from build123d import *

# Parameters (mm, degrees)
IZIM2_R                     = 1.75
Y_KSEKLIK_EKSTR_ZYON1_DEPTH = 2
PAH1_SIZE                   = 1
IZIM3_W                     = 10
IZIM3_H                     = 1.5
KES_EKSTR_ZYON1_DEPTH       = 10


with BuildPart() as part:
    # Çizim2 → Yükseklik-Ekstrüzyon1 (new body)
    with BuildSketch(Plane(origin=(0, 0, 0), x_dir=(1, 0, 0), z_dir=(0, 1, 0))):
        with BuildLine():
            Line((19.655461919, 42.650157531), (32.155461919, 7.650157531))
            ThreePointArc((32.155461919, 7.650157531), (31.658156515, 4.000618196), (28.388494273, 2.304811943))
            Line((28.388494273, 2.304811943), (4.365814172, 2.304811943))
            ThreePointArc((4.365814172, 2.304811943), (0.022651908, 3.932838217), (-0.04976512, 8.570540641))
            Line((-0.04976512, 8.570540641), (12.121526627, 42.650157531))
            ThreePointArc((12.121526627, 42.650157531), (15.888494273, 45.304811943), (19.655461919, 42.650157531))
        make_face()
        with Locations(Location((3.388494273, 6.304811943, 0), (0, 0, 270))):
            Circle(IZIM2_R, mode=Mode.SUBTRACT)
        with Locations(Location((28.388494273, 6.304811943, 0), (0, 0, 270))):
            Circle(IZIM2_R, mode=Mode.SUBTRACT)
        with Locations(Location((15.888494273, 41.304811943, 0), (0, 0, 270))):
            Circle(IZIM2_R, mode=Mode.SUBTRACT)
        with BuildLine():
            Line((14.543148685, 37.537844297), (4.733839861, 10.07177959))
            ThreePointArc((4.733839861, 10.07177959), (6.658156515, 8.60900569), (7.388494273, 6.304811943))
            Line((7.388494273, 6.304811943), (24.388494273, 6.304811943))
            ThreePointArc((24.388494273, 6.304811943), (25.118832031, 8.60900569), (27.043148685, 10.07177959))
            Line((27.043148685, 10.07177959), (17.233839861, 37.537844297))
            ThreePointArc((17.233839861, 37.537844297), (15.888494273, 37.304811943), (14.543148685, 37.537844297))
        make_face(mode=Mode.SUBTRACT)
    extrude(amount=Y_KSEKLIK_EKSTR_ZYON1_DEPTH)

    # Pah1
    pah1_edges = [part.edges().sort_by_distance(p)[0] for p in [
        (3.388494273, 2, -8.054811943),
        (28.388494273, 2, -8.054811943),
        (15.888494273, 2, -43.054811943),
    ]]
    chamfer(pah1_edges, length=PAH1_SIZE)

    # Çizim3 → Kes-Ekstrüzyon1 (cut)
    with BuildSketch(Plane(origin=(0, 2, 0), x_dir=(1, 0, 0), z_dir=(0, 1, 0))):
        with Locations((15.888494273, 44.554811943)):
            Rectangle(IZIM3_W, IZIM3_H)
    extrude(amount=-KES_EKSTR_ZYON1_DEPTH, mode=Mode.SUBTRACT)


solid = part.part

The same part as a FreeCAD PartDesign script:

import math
import FreeCAD as App
import Part
import Sketcher
Q = App.Units.Quantity


def edges_at(feature, points):
    """Names of the edges that pass closest to the given points."""
    edges = feature.Shape.Edges
    near = lambda p: min(range(len(edges)), key=lambda i: edges[i].distToShape(Part.Vertex(*p))[0])
    return sorted({f"Edge{near(p) + 1}" for p in points})


def add_polygon(sketch, points):
    """Adds a closed chain of lines whose ends are joined by coincident constraints."""
    first, n = sketch.GeometryCount, len(points)
    for a, b in zip(points, points[1:] + points[:1]):
        sketch.addGeometry(Part.LineSegment(App.Vector(*a, 0), App.Vector(*b, 0)), False)
    for i in range(n):
        sketch.addConstraint(Sketcher.Constraint("Coincident", first + i, 2, first + (i + 1) % n, 1))

doc = App.newDocument("Part")
body = doc.addObject("PartDesign::Body", "Body")

# Sketch on XZ plane
sketch1 = body.newObject("Sketcher::SketchObject", "Sketch")
sketch1.AttachmentSupport = (doc.getObject("XZ_Plane"), [""])
sketch1.MapMode = "FlatFace"
sketch1.addGeometry(Part.LineSegment(App.Vector(32.155462, -7.650158, 0), App.Vector(19.655462, -42.650158, 0)), False)
sketch1.addGeometry(Part.ArcOfCircle(Part.Circle(App.Vector(15.888494, -41.304812, 0), App.Vector(0, 0, 1), 4), math.radians(-160.346176), math.radians(-19.653824)), False)
sketch1.addGeometry(Part.LineSegment(App.Vector(12.121527, -42.650158, 0), App.Vector(-0.049765, -8.570541, 0)), False)
sketch1.addGeometry(Part.ArcOfCircle(Part.Circle(App.Vector(3.388494, -6.304812, 0), App.Vector(0, 0, 1), 4.117664), math.radians(76.269921), math.radians(213.383903)), False)
sketch1.addGeometry(Part.LineSegment(App.Vector(4.365814, -2.304812, 0), App.Vector(28.388494, -2.304812, 0)), False)
sketch1.addGeometry(Part.ArcOfCircle(Part.Circle(App.Vector(28.388494, -6.304812, 0), App.Vector(0, 0, 1), 4), math.radians(-19.653824), math.radians(90)), False)
sketch1.addGeometry(Part.Circle(App.Vector(28.388494, -6.304812, 0), App.Vector(0, 0, 1), 1.75), False)
sketch1.addGeometry(Part.Circle(App.Vector(3.388494, -6.304812, 0), App.Vector(0, 0, 1), 1.75), False)
sketch1.addGeometry(Part.ArcOfCircle(Part.Circle(App.Vector(15.888494, -41.304812, 0), App.Vector(0, 0, 1), 4), math.radians(70.346176), math.radians(109.653824)), False)
sketch1.addGeometry(Part.LineSegment(App.Vector(17.23384, -37.537844, 0), App.Vector(27.043149, -10.07178, 0)), False)
sketch1.addGeometry(Part.ArcOfCircle(Part.Circle(App.Vector(28.388494, -6.304812, 0), App.Vector(0, 0, 1), 4), math.radians(180), math.radians(250.346176)), False)
sketch1.addGeometry(Part.LineSegment(App.Vector(24.388494, -6.304812, 0), App.Vector(7.388494, -6.304812, 0)), False)
sketch1.addGeometry(Part.ArcOfCircle(Part.Circle(App.Vector(3.388494, -6.304812, 0), App.Vector(0, 0, 1), 4), math.radians(-70.346176), math.radians(0)), False)
sketch1.addGeometry(Part.LineSegment(App.Vector(4.73384, -10.07178, 0), App.Vector(14.543149, -37.537844, 0)), False)
sketch1.addGeometry(Part.Circle(App.Vector(15.888494, -41.304812, 0), App.Vector(0, 0, 1), 1.75), False)
sketch1.addConstraint(Sketcher.Constraint("Tangent", 0, 2, 1, 2))
sketch1.addConstraint(Sketcher.Constraint("Tangent", 1, 1, 2, 1))
sketch1.addConstraint(Sketcher.Constraint("Coincident", 2, 2, 3, 2))
sketch1.addConstraint(Sketcher.Constraint("Coincident", 3, 1, 4, 1))
sketch1.addConstraint(Sketcher.Constraint("Tangent", 4, 2, 5, 2))
sketch1.addConstraint(Sketcher.Constraint("Tangent", 5, 1, 0, 1))
sketch1.addConstraint(Sketcher.Constraint("Coincident", 8, 1, 9, 1))
sketch1.addConstraint(Sketcher.Constraint("Coincident", 9, 2, 10, 2))
sketch1.addConstraint(Sketcher.Constraint("Coincident", 10, 1, 11, 1))
sketch1.addConstraint(Sketcher.Constraint("Coincident", 11, 2, 12, 2))
sketch1.addConstraint(Sketcher.Constraint("Coincident", 12, 1, 13, 1))
sketch1.addConstraint(Sketcher.Constraint("Coincident", 13, 2, 8, 2))
sketch1.addConstraint(Sketcher.Constraint("Horizontal", 4))
sketch1.addConstraint(Sketcher.Constraint("Horizontal", 11))
sketch1.addConstraint(Sketcher.Constraint("Coincident", 6, 3, 5, 3))
sketch1.addConstraint(Sketcher.Constraint("Coincident", 7, 3, 3, 3))
sketch1.addConstraint(Sketcher.Constraint("Coincident", 8, 3, 1, 3))
sketch1.addConstraint(Sketcher.Constraint("Coincident", 10, 3, 5, 3))
sketch1.addConstraint(Sketcher.Constraint("Coincident", 12, 3, 3, 3))
sketch1.addConstraint(Sketcher.Constraint("Coincident", 14, 3, 1, 3))
sketch1.addConstraint(Sketcher.Constraint("Equal", 1, 5))
sketch1.addConstraint(Sketcher.Constraint("Equal", 6, 7))
sketch1.addConstraint(Sketcher.Constraint("Equal", 5, 8))
sketch1.addConstraint(Sketcher.Constraint("Equal", 8, 10))
sketch1.addConstraint(Sketcher.Constraint("Equal", 10, 12))
sketch1.addConstraint(Sketcher.Constraint("Equal", 7, 14))
sketch1.addConstraint(Sketcher.Constraint("Parallel", 0, 9))
sketch1.addConstraint(Sketcher.Constraint("Parallel", 2, 13))
sketch1.addConstraint(Sketcher.Constraint("Horizontal", 3, 3, 5, 3))
sketch1.addConstraint(Sketcher.Constraint("Horizontal", 0, 2, 1, 1))
sketch1.addConstraint(Sketcher.Constraint("Horizontal", 12, 3, 10, 1))
sketch1.addConstraint(Sketcher.Constraint("Horizontal", 9, 2, 12, 1))
sketch1.addConstraint(Sketcher.Constraint("Horizontal", 8, 1, 13, 2))
sketch1.addConstraint(Sketcher.Constraint("Radius", 1, Q("4 mm")))
sketch1.addConstraint(Sketcher.Constraint("Diameter", 6, Q("3.5 mm")))
sketch1.addConstraint(Sketcher.Constraint("DistanceX", 11, 2, 11, 1, Q("17 mm")))
sketch1.addConstraint(Sketcher.Constraint("DistanceY", 1, 3, 3, 3, Q("35 mm")))
sketch1.addConstraint(Sketcher.Constraint("Radius", 3, Q("4.117664 mm")))
sketch1.addConstraint(Sketcher.Constraint("DistanceY", 1, 3, -1, 1, Q("41.304812 mm")))
sketch1.addConstraint(Sketcher.Constraint("DistanceX", -1, 1, 0, 2, Q("19.655462 mm")))
sketch1.addConstraint(Sketcher.Constraint("DistanceX", -1, 1, 8, 1, Q("17.23384 mm")))
pad1 = body.newObject("PartDesign::Pad", "Pad")
pad1.Profile = sketch1
pad1.Length = 2
pad1.Reversed = True
doc.recompute()

chamfer = body.newObject("PartDesign::Chamfer", "Chamfer")
chamfer.Base = (pad1, edges_at(pad1, [(3.388, 2, -8.055), (28.388, 2, -8.055), (15.888, 2, -43.055)]))
chamfer.Size = 1

# Sketch on XZ plane
sketch2 = body.newObject("Sketcher::SketchObject", "Sketch001")
sketch2.AttachmentSupport = (doc.getObject("XZ_Plane"), [""])
sketch2.MapMode = "FlatFace"
sketch2.AttachmentOffset = App.Placement(App.Vector(0, 0, -2), App.Rotation())
add_polygon(sketch2, [(10.888494, -45.304812), (10.888494, -43.804812), (20.888494, -43.804812), (20.888494, -45.304812)])  # lines 0-3
sketch2.addConstraint(Sketcher.Constraint("Vertical", 0))
sketch2.addConstraint(Sketcher.Constraint("Horizontal", 1))
sketch2.addConstraint(Sketcher.Constraint("Vertical", 2))
sketch2.addConstraint(Sketcher.Constraint("Horizontal", 3))
sketch2.addConstraint(Sketcher.Constraint("DistanceX", 1, 1, 1, 2, Q("10 mm")))
sketch2.addConstraint(Sketcher.Constraint("DistanceY", 0, 1, 0, 2, Q("1.5 mm")))
sketch2.addConstraint(Sketcher.Constraint("DistanceY", 0, 2, -1, 1, Q("43.804812 mm")))
sketch2.addConstraint(Sketcher.Constraint("DistanceX", -1, 1, 0, 2, Q("10.888494 mm")))
pocket1 = body.newObject("PartDesign::Pocket", "Pocket")
pocket1.Profile = sketch2
pocket1.Length = 10
pocket1.Reversed = True

doc.recompute()
